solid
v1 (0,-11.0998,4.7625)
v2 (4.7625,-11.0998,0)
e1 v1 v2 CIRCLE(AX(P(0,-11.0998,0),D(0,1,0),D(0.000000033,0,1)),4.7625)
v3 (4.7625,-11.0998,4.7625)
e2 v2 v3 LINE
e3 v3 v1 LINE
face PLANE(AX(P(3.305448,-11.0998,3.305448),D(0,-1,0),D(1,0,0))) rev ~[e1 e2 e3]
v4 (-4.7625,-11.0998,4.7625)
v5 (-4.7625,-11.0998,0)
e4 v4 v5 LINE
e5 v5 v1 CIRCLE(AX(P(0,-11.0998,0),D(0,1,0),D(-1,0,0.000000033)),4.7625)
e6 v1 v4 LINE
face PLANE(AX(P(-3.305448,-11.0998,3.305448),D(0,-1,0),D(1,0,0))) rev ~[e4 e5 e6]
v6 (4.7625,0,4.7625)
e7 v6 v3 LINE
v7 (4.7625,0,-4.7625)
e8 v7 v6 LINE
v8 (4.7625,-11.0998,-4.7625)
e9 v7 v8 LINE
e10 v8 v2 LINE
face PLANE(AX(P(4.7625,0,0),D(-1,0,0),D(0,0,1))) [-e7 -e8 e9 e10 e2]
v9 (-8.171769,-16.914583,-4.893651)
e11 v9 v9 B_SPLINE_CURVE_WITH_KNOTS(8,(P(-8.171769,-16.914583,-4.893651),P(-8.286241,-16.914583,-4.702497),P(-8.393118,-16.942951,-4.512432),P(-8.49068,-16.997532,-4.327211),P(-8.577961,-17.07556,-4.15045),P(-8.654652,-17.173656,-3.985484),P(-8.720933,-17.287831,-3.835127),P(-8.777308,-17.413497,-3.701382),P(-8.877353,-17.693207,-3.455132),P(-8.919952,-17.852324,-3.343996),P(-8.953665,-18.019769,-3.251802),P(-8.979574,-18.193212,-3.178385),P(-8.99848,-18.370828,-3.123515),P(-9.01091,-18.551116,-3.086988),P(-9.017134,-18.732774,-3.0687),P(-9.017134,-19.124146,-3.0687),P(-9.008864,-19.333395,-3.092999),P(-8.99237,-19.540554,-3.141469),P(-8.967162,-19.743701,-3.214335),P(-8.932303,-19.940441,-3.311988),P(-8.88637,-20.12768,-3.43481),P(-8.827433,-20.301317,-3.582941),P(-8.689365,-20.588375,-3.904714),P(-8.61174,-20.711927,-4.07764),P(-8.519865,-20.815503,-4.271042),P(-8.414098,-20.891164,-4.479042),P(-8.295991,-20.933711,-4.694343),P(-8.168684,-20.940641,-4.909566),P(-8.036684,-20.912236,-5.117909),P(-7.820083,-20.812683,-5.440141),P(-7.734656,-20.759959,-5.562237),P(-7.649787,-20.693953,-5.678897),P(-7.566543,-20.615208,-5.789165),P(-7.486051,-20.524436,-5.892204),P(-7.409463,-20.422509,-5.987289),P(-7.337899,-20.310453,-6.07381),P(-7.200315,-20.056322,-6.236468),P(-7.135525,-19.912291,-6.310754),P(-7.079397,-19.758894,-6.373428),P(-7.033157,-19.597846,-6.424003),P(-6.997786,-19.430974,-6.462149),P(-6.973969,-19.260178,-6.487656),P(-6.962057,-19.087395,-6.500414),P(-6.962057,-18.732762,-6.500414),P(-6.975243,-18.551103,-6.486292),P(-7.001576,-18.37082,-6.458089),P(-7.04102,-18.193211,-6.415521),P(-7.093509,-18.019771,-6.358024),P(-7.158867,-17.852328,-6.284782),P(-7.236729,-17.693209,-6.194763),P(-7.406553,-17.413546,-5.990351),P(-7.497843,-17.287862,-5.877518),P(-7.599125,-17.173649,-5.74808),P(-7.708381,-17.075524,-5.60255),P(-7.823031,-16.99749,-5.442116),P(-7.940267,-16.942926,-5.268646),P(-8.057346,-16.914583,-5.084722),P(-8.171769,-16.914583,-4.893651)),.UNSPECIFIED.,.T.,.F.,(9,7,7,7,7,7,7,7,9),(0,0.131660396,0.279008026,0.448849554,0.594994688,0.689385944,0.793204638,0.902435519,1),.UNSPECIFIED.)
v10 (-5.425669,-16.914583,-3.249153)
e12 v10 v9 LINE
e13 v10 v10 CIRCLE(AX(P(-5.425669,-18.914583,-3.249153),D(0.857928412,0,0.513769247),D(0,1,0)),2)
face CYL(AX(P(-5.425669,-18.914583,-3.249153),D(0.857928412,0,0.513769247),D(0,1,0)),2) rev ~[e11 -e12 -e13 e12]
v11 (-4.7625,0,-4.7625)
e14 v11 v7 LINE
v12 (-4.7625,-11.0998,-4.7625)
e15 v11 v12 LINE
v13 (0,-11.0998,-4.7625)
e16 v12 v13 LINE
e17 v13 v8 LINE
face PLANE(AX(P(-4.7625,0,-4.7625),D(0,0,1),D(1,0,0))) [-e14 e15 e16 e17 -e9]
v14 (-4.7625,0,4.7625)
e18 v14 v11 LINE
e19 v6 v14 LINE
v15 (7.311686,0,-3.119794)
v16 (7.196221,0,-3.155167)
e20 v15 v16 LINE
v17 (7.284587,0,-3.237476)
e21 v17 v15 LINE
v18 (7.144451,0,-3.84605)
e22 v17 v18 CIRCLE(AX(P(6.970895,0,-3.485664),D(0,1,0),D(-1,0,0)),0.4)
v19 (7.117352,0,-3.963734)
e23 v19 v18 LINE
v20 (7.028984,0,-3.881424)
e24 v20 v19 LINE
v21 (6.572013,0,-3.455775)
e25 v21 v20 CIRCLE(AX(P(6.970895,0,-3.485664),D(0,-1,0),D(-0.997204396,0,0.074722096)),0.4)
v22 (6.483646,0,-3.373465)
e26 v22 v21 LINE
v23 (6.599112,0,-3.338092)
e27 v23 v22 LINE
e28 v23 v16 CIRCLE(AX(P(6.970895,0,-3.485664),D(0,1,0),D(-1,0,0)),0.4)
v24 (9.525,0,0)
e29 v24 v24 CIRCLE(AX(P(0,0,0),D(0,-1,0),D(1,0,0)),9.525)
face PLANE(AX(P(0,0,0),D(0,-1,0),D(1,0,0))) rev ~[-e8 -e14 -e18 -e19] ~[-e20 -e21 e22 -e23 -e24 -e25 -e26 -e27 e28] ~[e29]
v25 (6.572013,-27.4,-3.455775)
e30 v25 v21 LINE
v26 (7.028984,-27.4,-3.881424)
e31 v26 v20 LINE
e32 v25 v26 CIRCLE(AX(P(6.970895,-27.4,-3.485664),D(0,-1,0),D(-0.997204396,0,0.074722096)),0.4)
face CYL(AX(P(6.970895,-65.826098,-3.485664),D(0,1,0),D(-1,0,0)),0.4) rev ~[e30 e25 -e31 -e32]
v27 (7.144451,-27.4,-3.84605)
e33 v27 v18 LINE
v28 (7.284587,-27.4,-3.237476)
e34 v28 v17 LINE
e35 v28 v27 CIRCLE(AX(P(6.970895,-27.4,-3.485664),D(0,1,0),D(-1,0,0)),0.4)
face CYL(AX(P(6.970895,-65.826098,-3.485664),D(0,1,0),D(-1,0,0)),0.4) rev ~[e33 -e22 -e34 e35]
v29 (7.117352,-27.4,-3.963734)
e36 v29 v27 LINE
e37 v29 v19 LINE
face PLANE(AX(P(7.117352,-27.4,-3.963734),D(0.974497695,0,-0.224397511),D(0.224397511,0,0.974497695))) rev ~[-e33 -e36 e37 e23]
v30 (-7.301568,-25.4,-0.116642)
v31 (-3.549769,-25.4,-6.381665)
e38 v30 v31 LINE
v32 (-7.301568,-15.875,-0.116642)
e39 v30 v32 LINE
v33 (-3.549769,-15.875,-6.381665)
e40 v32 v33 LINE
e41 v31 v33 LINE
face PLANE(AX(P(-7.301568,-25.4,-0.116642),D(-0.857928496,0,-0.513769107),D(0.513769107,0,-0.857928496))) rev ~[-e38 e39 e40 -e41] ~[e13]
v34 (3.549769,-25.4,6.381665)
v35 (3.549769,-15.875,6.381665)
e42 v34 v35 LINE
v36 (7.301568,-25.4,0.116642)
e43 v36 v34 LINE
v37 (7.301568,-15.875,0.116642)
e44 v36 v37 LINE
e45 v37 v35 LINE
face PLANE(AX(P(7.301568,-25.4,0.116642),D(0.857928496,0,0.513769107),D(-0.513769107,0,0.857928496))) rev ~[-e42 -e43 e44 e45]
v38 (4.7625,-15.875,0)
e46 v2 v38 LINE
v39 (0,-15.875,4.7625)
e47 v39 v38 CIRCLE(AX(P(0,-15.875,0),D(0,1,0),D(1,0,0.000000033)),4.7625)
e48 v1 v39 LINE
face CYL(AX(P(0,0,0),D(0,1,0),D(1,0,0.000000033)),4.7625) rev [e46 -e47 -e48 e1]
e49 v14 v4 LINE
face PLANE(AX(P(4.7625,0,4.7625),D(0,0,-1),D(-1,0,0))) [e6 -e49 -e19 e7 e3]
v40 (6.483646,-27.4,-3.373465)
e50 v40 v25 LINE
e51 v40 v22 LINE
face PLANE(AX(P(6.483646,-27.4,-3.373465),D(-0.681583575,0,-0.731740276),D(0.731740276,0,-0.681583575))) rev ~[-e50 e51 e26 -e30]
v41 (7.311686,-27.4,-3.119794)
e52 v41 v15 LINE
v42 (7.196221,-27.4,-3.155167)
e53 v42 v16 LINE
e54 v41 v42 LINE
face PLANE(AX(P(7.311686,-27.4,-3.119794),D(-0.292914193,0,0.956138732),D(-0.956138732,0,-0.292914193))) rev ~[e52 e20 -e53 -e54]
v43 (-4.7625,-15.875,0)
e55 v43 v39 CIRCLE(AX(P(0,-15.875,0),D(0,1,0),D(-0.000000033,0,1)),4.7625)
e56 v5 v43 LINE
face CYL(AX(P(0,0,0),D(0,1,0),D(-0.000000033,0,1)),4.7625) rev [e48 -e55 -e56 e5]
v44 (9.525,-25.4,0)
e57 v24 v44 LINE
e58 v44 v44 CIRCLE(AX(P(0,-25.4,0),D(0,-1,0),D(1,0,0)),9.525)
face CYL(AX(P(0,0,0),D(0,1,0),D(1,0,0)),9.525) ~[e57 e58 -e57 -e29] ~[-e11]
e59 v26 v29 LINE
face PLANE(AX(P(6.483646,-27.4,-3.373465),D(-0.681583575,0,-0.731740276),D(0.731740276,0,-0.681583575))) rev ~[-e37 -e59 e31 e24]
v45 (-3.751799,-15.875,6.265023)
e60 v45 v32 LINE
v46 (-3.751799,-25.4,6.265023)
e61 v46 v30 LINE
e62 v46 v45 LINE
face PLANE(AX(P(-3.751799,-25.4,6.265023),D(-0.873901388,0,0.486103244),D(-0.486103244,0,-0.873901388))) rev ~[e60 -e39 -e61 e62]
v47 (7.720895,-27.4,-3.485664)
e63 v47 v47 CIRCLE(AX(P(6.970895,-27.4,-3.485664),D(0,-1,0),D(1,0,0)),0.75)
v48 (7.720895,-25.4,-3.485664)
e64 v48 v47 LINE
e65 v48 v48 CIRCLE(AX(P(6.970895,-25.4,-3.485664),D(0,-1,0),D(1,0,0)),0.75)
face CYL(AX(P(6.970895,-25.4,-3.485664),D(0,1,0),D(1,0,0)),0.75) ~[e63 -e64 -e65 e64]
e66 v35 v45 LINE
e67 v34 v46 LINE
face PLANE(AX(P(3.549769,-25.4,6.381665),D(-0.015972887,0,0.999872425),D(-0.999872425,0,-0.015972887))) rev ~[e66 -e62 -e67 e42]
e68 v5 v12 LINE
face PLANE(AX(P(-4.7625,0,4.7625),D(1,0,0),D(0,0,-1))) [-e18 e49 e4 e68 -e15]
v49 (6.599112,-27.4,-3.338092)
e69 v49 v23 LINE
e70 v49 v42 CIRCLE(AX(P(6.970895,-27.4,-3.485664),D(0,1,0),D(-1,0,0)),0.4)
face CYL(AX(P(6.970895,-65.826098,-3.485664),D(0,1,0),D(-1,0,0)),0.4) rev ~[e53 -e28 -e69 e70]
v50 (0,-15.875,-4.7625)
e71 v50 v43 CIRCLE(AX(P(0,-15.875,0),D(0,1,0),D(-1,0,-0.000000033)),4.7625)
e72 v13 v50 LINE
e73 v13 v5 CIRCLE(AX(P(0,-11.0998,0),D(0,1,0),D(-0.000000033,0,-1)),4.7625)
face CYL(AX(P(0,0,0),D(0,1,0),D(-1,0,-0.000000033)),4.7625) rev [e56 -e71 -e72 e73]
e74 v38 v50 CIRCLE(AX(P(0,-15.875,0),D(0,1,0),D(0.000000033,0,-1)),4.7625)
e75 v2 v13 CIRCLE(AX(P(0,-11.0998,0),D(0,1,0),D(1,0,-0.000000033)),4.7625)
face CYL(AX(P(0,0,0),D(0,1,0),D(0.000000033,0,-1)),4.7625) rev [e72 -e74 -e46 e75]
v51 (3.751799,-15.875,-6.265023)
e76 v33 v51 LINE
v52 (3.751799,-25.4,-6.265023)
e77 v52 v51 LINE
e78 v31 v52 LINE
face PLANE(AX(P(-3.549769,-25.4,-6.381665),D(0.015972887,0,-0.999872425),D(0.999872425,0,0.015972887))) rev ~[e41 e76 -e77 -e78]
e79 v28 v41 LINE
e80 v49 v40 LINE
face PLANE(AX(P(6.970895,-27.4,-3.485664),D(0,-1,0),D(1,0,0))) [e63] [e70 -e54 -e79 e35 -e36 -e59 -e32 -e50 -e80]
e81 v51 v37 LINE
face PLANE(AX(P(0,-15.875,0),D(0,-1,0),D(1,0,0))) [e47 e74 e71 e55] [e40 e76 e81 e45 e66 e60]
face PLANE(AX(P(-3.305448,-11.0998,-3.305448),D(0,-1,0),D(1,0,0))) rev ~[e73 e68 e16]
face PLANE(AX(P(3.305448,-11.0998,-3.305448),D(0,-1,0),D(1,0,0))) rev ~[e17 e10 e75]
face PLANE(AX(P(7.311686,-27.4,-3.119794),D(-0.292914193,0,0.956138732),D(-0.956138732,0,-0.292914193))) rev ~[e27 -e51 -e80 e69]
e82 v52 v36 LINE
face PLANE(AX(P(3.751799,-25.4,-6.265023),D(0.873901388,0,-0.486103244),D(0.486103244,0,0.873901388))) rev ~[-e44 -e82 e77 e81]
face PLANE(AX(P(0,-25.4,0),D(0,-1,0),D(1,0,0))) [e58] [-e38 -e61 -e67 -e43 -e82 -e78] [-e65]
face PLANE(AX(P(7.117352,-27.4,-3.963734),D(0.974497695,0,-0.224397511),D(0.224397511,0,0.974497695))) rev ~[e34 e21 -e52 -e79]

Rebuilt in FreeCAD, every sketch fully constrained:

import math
import FreeCAD as App
import Part
import Sketcher

V = App.Vector
Q = App.Units.Quantity

doc = App.newDocument("Part")
body = doc.addObject("PartDesign::Body", "Body")

# Sketch on XZ plane
sketch1 = doc.addObject("Sketcher::SketchObject", "Sketch")
body.addObject(sketch1)
sketch1.AttachmentSupport = (doc.XZ_Plane, [""])
sketch1.MapMode = "FlatFace"
sketch1.addGeometry(Part.Circle(V(0, 0, 0), V(0, 0, 1), 10), False)
sketch1.addConstraint(Sketcher.Constraint("Coincident", 0, 3, -1, 1))
sketch1.addConstraint(Sketcher.Constraint("Diameter", 0, Q("19.05 mm")))
pad1 = doc.addObject("PartDesign::Pad", "Pad")
body.addObject(pad1)
pad1.Profile = sketch1
pad1.Length = 25.4

# Sketch on XZ plane
sketch2 = doc.addObject("Sketcher::SketchObject", "Sketch001")
body.addObject(sketch2)
sketch2.AttachmentSupport = (doc.XZ_Plane, [""])
sketch2.MapMode = "FlatFace"
sketch2.addGeometry(Part.ArcOfCircle(Part.Circle(V(0, 0, 0), V(0, 0, 1), 4.8), math.radians(0), math.radians(90)), False)
sketch2.addGeometry(Part.ArcOfCircle(Part.Circle(V(0, 0, 0), V(0, 0, 1), 4.8), math.radians(90), math.radians(180)), False)
sketch2.addGeometry(Part.ArcOfCircle(Part.Circle(V(0, 0, 0), V(0, 0, 1), 4.8), math.radians(-180), math.radians(-90)), False)
sketch2.addGeometry(Part.ArcOfCircle(Part.Circle(V(0, 0, 0), V(0, 0, 1), 4.8), math.radians(-90), math.radians(0)), False)
sketch2.addConstraint(Sketcher.Constraint("Tangent", 0, 2, 1, 1))
sketch2.addConstraint(Sketcher.Constraint("Tangent", 1, 2, 2, 1))
sketch2.addConstraint(Sketcher.Constraint("Tangent", 2, 2, 3, 1))
sketch2.addConstraint(Sketcher.Constraint("Tangent", 3, 2, 0, 1))
sketch2.addConstraint(Sketcher.Constraint("Coincident", 0, 3, -1, 1))
sketch2.addConstraint(Sketcher.Constraint("Equal", 0, 1))
sketch2.addConstraint(Sketcher.Constraint("PointOnObject", 0, 2, -2))
sketch2.addConstraint(Sketcher.Constraint("PointOnObject", 1, 2, -1))
sketch2.addConstraint(Sketcher.Constraint("PointOnObject", 2, 2, -2))
sketch2.addConstraint(Sketcher.Constraint("PointOnObject", 3, 2, -1))
sketch2.addConstraint(Sketcher.Constraint("Radius", 0, Q("4.7625 mm")))
pocket1 = doc.addObject("PartDesign::Pocket", "Pocket")
body.addObject(pocket1)
pocket1.Profile = sketch2
pocket1.Type = "ThroughAll"
pocket1.Reversed = True

# Sketch on XZ plane
sketch3 = doc.addObject("Sketcher::SketchObject", "Sketch002")
body.addObject(sketch3)
sketch3.AttachmentSupport = (doc.XZ_Plane, [""])
sketch3.MapMode = "FlatFace"
sketch3.addGeometry(Part.LineSegment(V(4.8, 0, 0), V(4.8, 4.8, 0)), False)
sketch3.addGeometry(Part.LineSegment(V(4.8, 4.8, 0), V(0, 4.8, 0)), False)
sketch3.addGeometry(Part.ArcOfCircle(Part.Circle(V(0, 0, 0), V(0, 0, 1), 4.8), math.radians(0), math.radians(90)), False)
sketch3.addGeometry(Part.ArcOfCircle(Part.Circle(V(0, 0, 0), V(0, 0, 1), 4.8), math.radians(90), math.radians(180)), False)
sketch3.addGeometry(Part.LineSegment(V(0, 4.8, 0), V(-4.8, 4.8, 0)), False)
sketch3.addGeometry(Part.LineSegment(V(-4.8, 4.8, 0), V(-4.8, 0, 0)), False)
sketch3.addGeometry(Part.LineSegment(V(4.8, -4.8, 0), V(4.8, 0, 0)), False)
sketch3.addGeometry(Part.ArcOfCircle(Part.Circle(V(0, 0, 0), V(0, 0, 1), 4.8), math.radians(-90), math.radians(0)), False)
sketch3.addGeometry(Part.LineSegment(V(0, -4.8, 0), V(4.8, -4.8, 0)), False)
sketch3.addGeometry(Part.ArcOfCircle(Part.Circle(V(0, 0, 0), V(0, 0, 1), 4.8), math.radians(-180), math.radians(-90)), False)
sketch3.addGeometry(Part.LineSegment(V(-4.8, 0, 0), V(-4.8, -4.8, 0)), False)
sketch3.addGeometry(Part.LineSegment(V(-4.8, -4.8, 0), V(0, -4.8, 0)), False)
sketch3.addConstraint(Sketcher.Constraint("Coincident", 0, 2, 1, 1))
sketch3.addConstraint(Sketcher.Constraint("Tangent", 1, 2, 2, 2))
sketch3.addConstraint(Sketcher.Constraint("Tangent", 2, 1, 0, 1))
sketch3.addConstraint(Sketcher.Constraint("Tangent", 3, 1, 4, 1))
sketch3.addConstraint(Sketcher.Constraint("Coincident", 4, 2, 5, 1))
sketch3.addConstraint(Sketcher.Constraint("Tangent", 5, 2, 3, 2))
sketch3.addConstraint(Sketcher.Constraint("Tangent", 6, 2, 7, 2))
sketch3.addConstraint(Sketcher.Constraint("Tangent", 7, 1, 8, 1))
sketch3.addConstraint(Sketcher.Constraint("Coincident", 8, 2, 6, 1))
sketch3.addConstraint(Sketcher.Constraint("Tangent", 9, 1, 10, 1))
sketch3.addConstraint(Sketcher.Constraint("Coincident", 10, 2, 11, 1))
sketch3.addConstraint(Sketcher.Constraint("Tangent", 11, 2, 9, 2))
sketch3.addConstraint(Sketcher.Constraint("Vertical", 0))
sketch3.addConstraint(Sketcher.Constraint("Horizontal", 1))
sketch3.addConstraint(Sketcher.Constraint("Horizontal", 4))
sketch3.addConstraint(Sketcher.Constraint("Vertical", 5))
sketch3.addConstraint(Sketcher.Constraint("Vertical", 6))
sketch3.addConstraint(Sketcher.Constraint("Horizontal", 8))
sketch3.addConstraint(Sketcher.Constraint("Vertical", 10))
sketch3.addConstraint(Sketcher.Constraint("Horizontal", 11))
sketch3.addConstraint(Sketcher.Constraint("Coincident", 2, 3, -1, 1))
sketch3.addConstraint(Sketcher.Constraint("Coincident", 3, 3, -1, 1))
sketch3.addConstraint(Sketcher.Constraint("Coincident", 7, 3, -1, 1))
sketch3.addConstraint(Sketcher.Constraint("Coincident", 9, 3, -1, 1))
sketch3.addConstraint(Sketcher.Constraint("Equal", 2, 3))
sketch3.addConstraint(Sketcher.Constraint("Equal", 3, 7))
sketch3.addConstraint(Sketcher.Constraint("Equal", 7, 9))
sketch3.addConstraint(Sketcher.Constraint("Radius", 2, Q("4.7625 mm")))
pocket2 = doc.addObject("PartDesign::Pocket", "Pocket001")
body.addObject(pocket2)
pocket2.Profile = sketch3
pocket2.Length = 11.0998
pocket2.Reversed = True

# Sketch on XZ plane
sketch4 = doc.addObject("Sketcher::SketchObject", "Sketch003")
body.addObject(sketch4)
sketch4.AttachmentSupport = (doc.XZ_Plane, [""])
sketch4.MapMode = "FlatFace"
sketch4.AttachmentOffset = App.Placement(V(0, 0, 25.4), App.Rotation())
sketch4.addGeometry(Part.LineSegment(V(7.301568, 0.116642, 0), V(3.549769, 6.381665, 0)), False)
sketch4.addGeometry(Part.LineSegment(V(3.549769, 6.381665, 0), V(-3.751799, 6.265023, 0)), False)
sketch4.addGeometry(Part.LineSegment(V(-3.751799, 6.265023, 0), V(-7.301568, -0.116642, 0)), False)
sketch4.addGeometry(Part.LineSegment(V(-7.301568, -0.116642, 0), V(-3.549769, -6.381665, 0)), False)
sketch4.addGeometry(Part.LineSegment(V(-3.549769, -6.381665, 0), V(3.751799, -6.265023, 0)), False)
sketch4.addGeometry(Part.LineSegment(V(3.751799, -6.265023, 0), V(7.301568, 0.116642, 0)), False)
sketch4.addConstraint(Sketcher.Constraint("Coincident", 0, 2, 1, 1))
sketch4.addConstraint(Sketcher.Constraint("Coincident", 1, 2, 2, 1))
sketch4.addConstraint(Sketcher.Constraint("Coincident", 2, 2, 3, 1))
sketch4.addConstraint(Sketcher.Constraint("Coincident", 3, 2, 4, 1))
sketch4.addConstraint(Sketcher.Constraint("Coincident", 4, 2, 5, 1))
sketch4.addConstraint(Sketcher.Constraint("Coincident", 5, 2, 0, 1))
sketch4.addConstraint(Sketcher.Constraint("Symmetric", 0, 2, 3, 2, -1, 1))
sketch4.addConstraint(Sketcher.Constraint("Symmetric", 1, 2, 4, 2, -1, 1))
sketch4.addConstraint(Sketcher.Constraint("Symmetric", 2, 2, 5, 2, -1, 1))
sketch4.addConstraint(Sketcher.Constraint("Equal", 0, 1))
sketch4.addConstraint(Sketcher.Constraint("Equal", 1, 2))
sketch4.addConstraint(Sketcher.Constraint("Distance", 0, Q("7.3025 mm")))
sketch4.addConstraint(Sketcher.Constraint("DistanceX", 1, 2, -1, 1, Q("3.751799 mm")))
sketch4.addConstraint(Sketcher.Constraint("DistanceX", 2, 2, 3, 2, Q("3.751799 mm")))
sketch4.addConstraint(Sketcher.Constraint("DistanceX", -1, 1, 0, 2, Q("3.549769 mm")))
pocket3 = doc.addObject("PartDesign::Pocket", "Pocket002")
body.addObject(pocket3)
pocket3.Profile = sketch4
pocket3.Length = 9.525

# Sketch on XZ plane
sketch5 = doc.addObject("Sketcher::SketchObject", "Sketch004")
body.addObject(sketch5)
sketch5.AttachmentSupport = (doc.XZ_Plane, [""])
sketch5.MapMode = "FlatFace"
sketch5.AttachmentOffset = App.Placement(V(0, 0, 25.4), App.Rotation())
sketch5.addGeometry(Part.Circle(V(7, -3.5, 0), V(0, 0, 1), 0.8), False)
sketch5.addConstraint(Sketcher.Constraint("Diameter", 0, Q("1.5 mm")))
sketch5.addConstraint(Sketcher.Constraint("DistanceX", -1, 1, 0, 3, Q("6.970895 mm")))
sketch5.addConstraint(Sketcher.Constraint("DistanceY", 0, 3, -1, 1, Q("3.485664 mm")))
pad2 = doc.addObject("PartDesign::Pad", "Pad001")
body.addObject(pad2)
pad2.Profile = sketch5
pad2.Length = 2

# Sketch on XZ plane
sketch6 = doc.addObject("Sketcher::SketchObject", "Sketch005")
body.addObject(sketch6)
sketch6.AttachmentSupport = (doc.XZ_Plane, [""])
sketch6.MapMode = "FlatFace"
sketch6.AttachmentOffset = App.Placement(V(0, 0, 27.4), App.Rotation())
sketch6.addGeometry(Part.LineSegment(V(7.1, -4, 0), V(7.3, -3.1, 0)), False)
sketch6.addGeometry(Part.LineSegment(V(7.3, -3.1, 0), V(6.5, -3.4, 0)), False)
sketch6.addGeometry(Part.LineSegment(V(6.5, -3.4, 0), V(7.1, -4, 0)), False)
sketch6.addConstraint(Sketcher.Constraint("Coincident", 0, 2, 1, 1))
sketch6.addConstraint(Sketcher.Constraint("Coincident", 1, 2, 2, 1))
sketch6.addConstraint(Sketcher.Constraint("Coincident", 2, 2, 0, 1))
sketch6.addConstraint(Sketcher.Constraint("Equal", 0, 1))
sketch6.addConstraint(Sketcher.Constraint("Equal", 1, 2))
sketch6.addConstraint(Sketcher.Constraint("DistanceX", 1, 2, 0, 2, Q("0.82804 mm")))
sketch6.addConstraint(Sketcher.Constraint("DistanceY", 1, 2, 0, 2, Q("0.253671 mm")))
sketch6.addConstraint(Sketcher.Constraint("DistanceX", -1, 1, 0, 2, Q("7.311686 mm")))
sketch6.addConstraint(Sketcher.Constraint("DistanceY", 0, 2, -1, 1, Q("3.119794 mm")))
pocket4 = doc.addObject("PartDesign::Pocket", "Pocket003")
body.addObject(pocket4)
pocket4.Profile = sketch6
pocket4.Type = "ThroughAll"

# Sketch on XZ plane
sketch7 = doc.addObject("Sketcher::SketchObject", "Sketch006")
body.addObject(sketch7)
sketch7.AttachmentSupport = (doc.XZ_Plane, [""])
sketch7.MapMode = "FlatFace"
sketch7.AttachmentOffset = App.Placement(V(0, 0, 27.4), App.Rotation())
sketch7.addGeometry(Part.Circle(V(6.97, -3.49, 0), V(0, 0, 1), 0.4), False)
sketch7.addConstraint(Sketcher.Constraint("Diameter", 0, Q("0.8 mm")))
sketch7.addConstraint(Sketcher.Constraint("DistanceX", -1, 1, 0, 3, Q("6.970895 mm")))
sketch7.addConstraint(Sketcher.Constraint("DistanceY", 0, 3, -1, 1, Q("3.485664 mm")))
doc.recompute()
hole = doc.addObject("PartDesign::Hole", "Hole")
body.addObject(hole)
hole.Profile = sketch7
hole.ThreadType = "None"
hole.Diameter = 0.8
hole.DepthType = "ThroughAll"

# Sketch on an angled plane
sketch8 = doc.addObject("Sketcher::SketchObject", "Sketch007")
body.addObject(sketch8)
sketch8.Placement = App.Placement(V(-5.425669, 0, -3.249153), App.Rotation(V(0, 1, 0), V(-0.513769247, 0, 0.857928412), V(0.857928412, 0, 0.513769247), "ZXY"))
sketch8.addGeometry(Part.Circle(V(-18.9, 0, 0), V(0, 0, 1), 2), False)
sketch8.addConstraint(Sketcher.Constraint("PointOnObject", 0, 3, -1))
sketch8.addConstraint(Sketcher.Constraint("Diameter", 0, Q("4 mm")))
sketch8.addConstraint(Sketcher.Constraint("DistanceX", 0, 3, -1, 1, Q("18.914583 mm")))
pocket5 = doc.addObject("PartDesign::Pocket", "Pocket004")
body.addObject(pocket5)
pocket5.Profile = sketch8
pocket5.Length = 25

doc.recompute()
